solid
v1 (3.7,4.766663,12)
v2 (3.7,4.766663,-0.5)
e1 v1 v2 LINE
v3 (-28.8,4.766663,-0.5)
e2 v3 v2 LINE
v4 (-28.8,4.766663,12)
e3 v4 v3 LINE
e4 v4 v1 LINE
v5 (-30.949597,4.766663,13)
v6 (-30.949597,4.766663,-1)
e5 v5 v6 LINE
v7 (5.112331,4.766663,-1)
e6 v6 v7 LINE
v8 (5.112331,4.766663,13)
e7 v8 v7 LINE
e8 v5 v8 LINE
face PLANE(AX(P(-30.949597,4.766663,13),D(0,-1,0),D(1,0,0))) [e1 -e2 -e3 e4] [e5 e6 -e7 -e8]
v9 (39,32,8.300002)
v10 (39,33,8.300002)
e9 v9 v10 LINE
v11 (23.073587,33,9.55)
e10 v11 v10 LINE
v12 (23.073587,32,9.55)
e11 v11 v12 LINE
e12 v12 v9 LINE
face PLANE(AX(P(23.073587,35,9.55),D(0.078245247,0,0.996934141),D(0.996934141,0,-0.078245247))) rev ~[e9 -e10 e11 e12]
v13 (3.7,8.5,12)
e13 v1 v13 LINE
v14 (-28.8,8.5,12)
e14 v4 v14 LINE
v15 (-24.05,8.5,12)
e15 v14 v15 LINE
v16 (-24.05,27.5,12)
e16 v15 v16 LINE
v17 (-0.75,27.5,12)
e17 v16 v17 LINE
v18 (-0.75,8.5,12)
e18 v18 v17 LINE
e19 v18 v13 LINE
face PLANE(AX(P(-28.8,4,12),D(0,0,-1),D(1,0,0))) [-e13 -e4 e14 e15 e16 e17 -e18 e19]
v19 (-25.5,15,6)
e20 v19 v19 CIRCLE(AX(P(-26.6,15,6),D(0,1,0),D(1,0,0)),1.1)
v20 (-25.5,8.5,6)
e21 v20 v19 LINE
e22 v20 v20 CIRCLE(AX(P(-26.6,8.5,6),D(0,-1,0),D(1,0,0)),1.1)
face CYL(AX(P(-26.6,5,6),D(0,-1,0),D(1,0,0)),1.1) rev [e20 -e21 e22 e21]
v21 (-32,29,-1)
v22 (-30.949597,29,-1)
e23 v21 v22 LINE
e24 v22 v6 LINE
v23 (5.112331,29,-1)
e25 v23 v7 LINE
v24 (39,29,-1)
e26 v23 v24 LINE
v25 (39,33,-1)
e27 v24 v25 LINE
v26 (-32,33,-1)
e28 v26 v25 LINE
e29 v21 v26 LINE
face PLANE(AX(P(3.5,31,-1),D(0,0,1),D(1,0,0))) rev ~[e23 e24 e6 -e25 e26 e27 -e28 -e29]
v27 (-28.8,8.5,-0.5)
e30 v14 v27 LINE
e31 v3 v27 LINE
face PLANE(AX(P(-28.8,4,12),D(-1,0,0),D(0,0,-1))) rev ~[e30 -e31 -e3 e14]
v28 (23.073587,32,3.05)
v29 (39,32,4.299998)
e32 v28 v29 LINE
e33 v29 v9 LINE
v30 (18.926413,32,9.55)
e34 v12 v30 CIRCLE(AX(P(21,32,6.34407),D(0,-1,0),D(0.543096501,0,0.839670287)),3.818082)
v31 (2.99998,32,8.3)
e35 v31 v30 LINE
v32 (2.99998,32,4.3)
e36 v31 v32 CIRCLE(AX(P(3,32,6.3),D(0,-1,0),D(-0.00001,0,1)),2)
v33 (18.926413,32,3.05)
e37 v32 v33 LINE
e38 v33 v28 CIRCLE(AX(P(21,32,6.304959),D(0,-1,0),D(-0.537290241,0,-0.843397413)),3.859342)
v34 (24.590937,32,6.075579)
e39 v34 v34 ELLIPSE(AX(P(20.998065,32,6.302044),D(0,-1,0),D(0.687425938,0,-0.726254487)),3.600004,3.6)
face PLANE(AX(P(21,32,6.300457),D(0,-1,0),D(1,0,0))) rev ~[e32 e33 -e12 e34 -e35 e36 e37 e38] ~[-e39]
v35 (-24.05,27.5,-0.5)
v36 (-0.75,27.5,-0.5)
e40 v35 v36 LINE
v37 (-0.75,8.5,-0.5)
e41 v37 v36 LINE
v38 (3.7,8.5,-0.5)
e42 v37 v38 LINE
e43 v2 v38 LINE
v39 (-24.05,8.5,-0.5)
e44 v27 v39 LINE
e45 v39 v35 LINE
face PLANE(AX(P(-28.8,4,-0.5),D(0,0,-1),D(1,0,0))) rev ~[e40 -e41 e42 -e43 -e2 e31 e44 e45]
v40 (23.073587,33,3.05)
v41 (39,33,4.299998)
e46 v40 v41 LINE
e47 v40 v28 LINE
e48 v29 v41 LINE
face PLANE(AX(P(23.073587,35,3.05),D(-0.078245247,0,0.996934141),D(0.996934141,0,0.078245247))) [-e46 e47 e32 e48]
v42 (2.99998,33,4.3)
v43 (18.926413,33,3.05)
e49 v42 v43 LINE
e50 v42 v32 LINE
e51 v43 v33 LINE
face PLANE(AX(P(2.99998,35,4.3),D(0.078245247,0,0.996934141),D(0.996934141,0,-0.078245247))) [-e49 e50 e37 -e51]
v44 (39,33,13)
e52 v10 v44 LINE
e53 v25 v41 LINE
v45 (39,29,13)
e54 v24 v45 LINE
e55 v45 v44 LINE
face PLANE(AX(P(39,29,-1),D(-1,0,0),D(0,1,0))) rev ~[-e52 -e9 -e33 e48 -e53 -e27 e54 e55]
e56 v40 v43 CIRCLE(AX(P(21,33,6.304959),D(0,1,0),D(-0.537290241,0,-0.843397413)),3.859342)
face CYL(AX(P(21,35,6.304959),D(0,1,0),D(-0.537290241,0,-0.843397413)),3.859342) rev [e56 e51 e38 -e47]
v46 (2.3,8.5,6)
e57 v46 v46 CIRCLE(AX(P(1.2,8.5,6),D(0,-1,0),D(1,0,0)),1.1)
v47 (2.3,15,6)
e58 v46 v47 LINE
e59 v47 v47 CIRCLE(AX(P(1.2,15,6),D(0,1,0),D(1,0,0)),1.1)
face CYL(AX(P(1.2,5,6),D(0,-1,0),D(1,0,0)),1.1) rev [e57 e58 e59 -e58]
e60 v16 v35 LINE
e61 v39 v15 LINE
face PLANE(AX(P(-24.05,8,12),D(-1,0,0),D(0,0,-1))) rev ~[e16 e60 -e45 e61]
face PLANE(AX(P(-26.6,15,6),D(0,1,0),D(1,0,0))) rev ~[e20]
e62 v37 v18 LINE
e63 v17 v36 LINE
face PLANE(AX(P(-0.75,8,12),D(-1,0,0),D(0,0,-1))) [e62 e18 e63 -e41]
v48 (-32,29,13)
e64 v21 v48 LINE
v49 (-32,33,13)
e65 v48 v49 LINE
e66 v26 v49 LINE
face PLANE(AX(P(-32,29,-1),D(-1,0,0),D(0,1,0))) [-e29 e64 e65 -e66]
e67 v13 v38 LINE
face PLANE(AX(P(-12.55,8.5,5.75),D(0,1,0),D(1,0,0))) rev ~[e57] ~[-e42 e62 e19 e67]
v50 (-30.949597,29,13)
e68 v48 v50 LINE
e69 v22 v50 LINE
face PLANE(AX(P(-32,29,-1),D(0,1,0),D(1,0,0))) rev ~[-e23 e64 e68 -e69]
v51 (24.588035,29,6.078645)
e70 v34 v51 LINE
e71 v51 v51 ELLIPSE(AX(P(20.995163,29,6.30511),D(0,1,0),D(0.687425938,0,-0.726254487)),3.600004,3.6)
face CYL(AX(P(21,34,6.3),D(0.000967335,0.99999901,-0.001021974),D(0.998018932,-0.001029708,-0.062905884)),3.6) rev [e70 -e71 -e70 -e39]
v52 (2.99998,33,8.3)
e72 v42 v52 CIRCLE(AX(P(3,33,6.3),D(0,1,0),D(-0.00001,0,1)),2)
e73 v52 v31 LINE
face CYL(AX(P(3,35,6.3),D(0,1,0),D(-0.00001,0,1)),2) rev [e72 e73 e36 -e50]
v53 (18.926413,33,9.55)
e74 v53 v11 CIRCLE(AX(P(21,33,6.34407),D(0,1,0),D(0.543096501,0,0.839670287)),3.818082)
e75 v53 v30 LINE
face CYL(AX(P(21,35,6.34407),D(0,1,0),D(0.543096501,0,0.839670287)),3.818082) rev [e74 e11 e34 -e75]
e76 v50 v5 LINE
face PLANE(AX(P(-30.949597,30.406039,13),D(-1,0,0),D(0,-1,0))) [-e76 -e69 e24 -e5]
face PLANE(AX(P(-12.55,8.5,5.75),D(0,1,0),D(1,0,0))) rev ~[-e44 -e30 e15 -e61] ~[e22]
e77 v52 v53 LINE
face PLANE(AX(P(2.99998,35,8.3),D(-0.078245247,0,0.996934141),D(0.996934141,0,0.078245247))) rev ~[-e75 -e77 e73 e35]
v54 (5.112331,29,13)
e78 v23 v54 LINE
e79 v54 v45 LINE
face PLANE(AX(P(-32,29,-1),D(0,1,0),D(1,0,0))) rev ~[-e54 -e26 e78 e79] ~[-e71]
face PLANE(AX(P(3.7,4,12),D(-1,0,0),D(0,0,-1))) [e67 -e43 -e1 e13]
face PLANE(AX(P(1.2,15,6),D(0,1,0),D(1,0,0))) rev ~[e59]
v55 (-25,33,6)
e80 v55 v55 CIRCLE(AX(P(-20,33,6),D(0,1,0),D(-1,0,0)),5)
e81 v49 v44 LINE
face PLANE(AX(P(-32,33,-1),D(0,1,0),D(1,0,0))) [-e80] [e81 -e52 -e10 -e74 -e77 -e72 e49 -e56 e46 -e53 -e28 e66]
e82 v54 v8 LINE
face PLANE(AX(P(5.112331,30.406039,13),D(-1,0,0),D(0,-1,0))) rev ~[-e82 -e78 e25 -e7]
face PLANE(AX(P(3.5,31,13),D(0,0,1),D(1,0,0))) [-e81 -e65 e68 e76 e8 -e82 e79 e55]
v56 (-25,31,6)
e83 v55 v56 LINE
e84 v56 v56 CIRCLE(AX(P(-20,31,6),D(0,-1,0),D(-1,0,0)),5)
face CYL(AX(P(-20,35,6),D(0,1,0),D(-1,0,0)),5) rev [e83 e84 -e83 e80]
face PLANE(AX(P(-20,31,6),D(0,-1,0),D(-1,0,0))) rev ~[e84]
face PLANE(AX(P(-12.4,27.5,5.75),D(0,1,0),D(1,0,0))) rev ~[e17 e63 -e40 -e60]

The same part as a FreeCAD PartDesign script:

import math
import FreeCAD as App
import Part
import Sketcher
from FreeCAD import Vector
Q = App.Units.Quantity

doc = App.newDocument("Part")
body = doc.addObject("PartDesign::Body", "Body")

# Sketch on XZ plane
sketch1 = body.newObject("Sketcher::SketchObject", "Sketch")
sketch1.AttachmentSupport = (doc.getObject("XZ_Plane"), [""])
sketch1.MapMode = "FlatFace"
sketch1.AttachmentOffset = App.Placement(Vector(0, 0, -22), App.Rotation())
sketch1.addGeometry(Part.Circle(Vector(30, 6, 0), Vector(0, 0, 1), 1.1), False)
sketch1.addConstraint(Sketcher.Constraint("Diameter", 0, Q("2.2 mm")))
sketch1.addConstraint(Sketcher.Constraint("DistanceX", -1, 1, 0, 3, Q("30 mm")))
sketch1.addConstraint(Sketcher.Constraint("DistanceY", -1, 1, 0, 3, Q("6 mm")))
pad1 = body.newObject("PartDesign::Pad", "Pad")
pad1.Profile = sketch1
pad1.Length = 10
body2 = doc.addObject("PartDesign::Body", "Body001")
body2.AllowCompound = True

# Sketch on XZ plane
sketch2 = body2.newObject("Sketcher::SketchObject", "Sketch001")
sketch2.AttachmentSupport = (doc.getObject("XZ_Plane001"), [""])
sketch2.MapMode = "FlatFace"
sketch2.AttachmentOffset = App.Placement(Vector(0, 0, -22), App.Rotation())
sketch2.addGeometry(Part.Circle(Vector(2.2, 6, 0), Vector(0, 0, 1), 1.1), False)
sketch2.addConstraint(Sketcher.Constraint("Diameter", 0, Q("2.2 mm")))
sketch2.addConstraint(Sketcher.Constraint("DistanceY", -1, 1, 0, 3, Q("6 mm")))
sketch2.addConstraint(Sketcher.Constraint("DistanceX", -1, 1, 0, 3, Q("2.2 mm")))
pad2 = body2.newObject("PartDesign::Pad", "Pad001")
pad2.Profile = sketch2
pad2.Length = 10
doc.recompute()

boolean = body2.newObject("PartDesign::Boolean", "Boolean")
boolean.Type = "Fuse"
boolean.addObjects([body])
body3 = doc.addObject("PartDesign::Body", "Body002")

# Sketch on XZ plane
sketch3 = body3.newObject("Sketcher::SketchObject", "Sketch002")
sketch3.AttachmentSupport = (doc.getObject("XZ_Plane002"), [""])
sketch3.MapMode = "FlatFace"
sketch3.addGeometry(Part.LineSegment(Vector(5, 12, 0), Vector(5, 0, 0)), False)
sketch3.addGeometry(Part.LineSegment(Vector(5, 0, 0), Vector(28, 0, 0)), False)
sketch3.addGeometry(Part.LineSegment(Vector(28, 0, 0), Vector(28, 12, 0)), False)
sketch3.addGeometry(Part.LineSegment(Vector(28, 12, 0), Vector(5, 12, 0)), False)
sketch3.addConstraint(Sketcher.Constraint("Coincident", 0, 2, 1, 1))
sketch3.addConstraint(Sketcher.Constraint("Coincident", 1, 2, 2, 1))
sketch3.addConstraint(Sketcher.Constraint("Coincident", 2, 2, 3, 1))
sketch3.addConstraint(Sketcher.Constraint("Coincident", 3, 2, 0, 1))
sketch3.addConstraint(Sketcher.Constraint("Vertical", 0))
sketch3.addConstraint(Sketcher.Constraint("Horizontal", 1))
sketch3.addConstraint(Sketcher.Constraint("Vertical", 2))
sketch3.addConstraint(Sketcher.Constraint("Horizontal", 3))
sketch3.addConstraint(Sketcher.Constraint("PointOnObject", 0, 2, -1))
sketch3.addConstraint(Sketcher.Constraint("DistanceX", 1, 1, 1, 2, Q("23.3 mm")))
sketch3.addConstraint(Sketcher.Constraint("DistanceY", 0, 2, 0, 1, Q("12.5 mm")))
sketch3.addConstraint(Sketcher.Constraint("DistanceX", -1, 1, 0, 2, Q("4.75 mm")))
pad3 = body3.newObject("PartDesign::Pad", "Pad002")
pad3.Profile = sketch3
pad3.Length = 19.5
body4 = doc.addObject("PartDesign::Body", "Body003")
doc.recompute()

body3.Placement = App.Placement(Vector(0, 19, 0), App.Rotation(Vector(0, 0, 1), 0))
boolean2 = body4.newObject("PartDesign::Boolean", "Boolean001")
boolean2.Type = "Fuse"
boolean2.addObjects([body3])
body5 = doc.addObject("PartDesign::Body", "Body004")

# Sketch on XZ plane
sketch4 = body5.newObject("Sketcher::SketchObject", "Sketch003")
sketch4.AttachmentSupport = (doc.getObject("XZ_Plane004"), [""])
sketch4.MapMode = "FlatFace"
sketch4.addGeometry(Part.LineSegment(Vector(0, 12, 0), Vector(0, 0, 0)), False)
sketch4.addGeometry(Part.LineSegment(Vector(0, 0, 0), Vector(32, 0, 0)), False)
sketch4.addGeometry(Part.LineSegment(Vector(32, 0, 0), Vector(32, 12, 0)), False)
sketch4.addGeometry(Part.LineSegment(Vector(32, 12, 0), Vector(0, 12, 0)), False)
sketch4.addConstraint(Sketcher.Constraint("Coincident", 0, 2, 1, 1))
sketch4.addConstraint(Sketcher.Constraint("Coincident", 1, 2, 2, 1))
sketch4.addConstraint(Sketcher.Constraint("Coincident", 2, 2, 3, 1))
sketch4.addConstraint(Sketcher.Constraint("Coincident", 3, 2, 0, 1))
sketch4.addConstraint(Sketcher.Constraint("Vertical", 0))
sketch4.addConstraint(Sketcher.Constraint("Horizontal", 1))
sketch4.addConstraint(Sketcher.Constraint("Vertical", 2))
sketch4.addConstraint(Sketcher.Constraint("Horizontal", 3))
sketch4.addConstraint(Sketcher.Constraint("Coincident", 0, 2, -1, 1))
sketch4.addConstraint(Sketcher.Constraint("DistanceX", 1, 1, 1, 2, Q("32.5 mm")))
sketch4.addConstraint(Sketcher.Constraint("DistanceY", 0, 2, 0, 1, Q("12.5 mm")))
pad4 = body5.newObject("PartDesign::Pad", "Pad003")
pad4.Profile = sketch4
pad4.Length = 4.5
body6 = doc.addObject("PartDesign::Body", "Body005")
doc.recompute()

body5.Placement = App.Placement(Vector(0, 23, 0), App.Rotation(Vector(0, 0, 1), 0))
boolean3 = body6.newObject("PartDesign::Boolean", "Boolean002")
boolean3.Type = "Fuse"
boolean3.addObjects([body5])
body7 = doc.addObject("PartDesign::Body", "Body006")

# Sketch on XY plane
sketch5 = body7.newObject("Sketcher::SketchObject", "Sketch004")
sketch5.AttachmentSupport = (doc.getObject("XY_Plane006"), [""])
sketch5.MapMode = "FlatFace"
sketch5.addGeometry(Part.LineSegment(Vector(-2, 22, 0), Vector(-2, -3, 0)), False)
sketch5.addGeometry(Part.LineSegment(Vector(-2, -3, 0), Vector(34, -3, 0)), False)
sketch5.addGeometry(Part.LineSegment(Vector(34, -3, 0), Vector(34, 22, 0)), False)
sketch5.addGeometry(Part.LineSegment(Vector(34, 22, 0), Vector(-2, 22, 0)), False)
sketch5.addConstraint(Sketcher.Constraint("Coincident", 0, 2, 1, 1))
sketch5.addConstraint(Sketcher.Constraint("Coincident", 1, 2, 2, 1))
sketch5.addConstraint(Sketcher.Constraint("Coincident", 2, 2, 3, 1))
sketch5.addConstraint(Sketcher.Constraint("Coincident", 3, 2, 0, 1))
sketch5.addConstraint(Sketcher.Constraint("Vertical", 0))
sketch5.addConstraint(Sketcher.Constraint("Horizontal", 1))
sketch5.addConstraint(Sketcher.Constraint("Vertical", 2))
sketch5.addConstraint(Sketcher.Constraint("Horizontal", 3))
sketch5.addConstraint(Sketcher.Constraint("DistanceX", 1, 1, 1, 2, Q("36.061928 mm")))
sketch5.addConstraint(Sketcher.Constraint("DistanceY", 0, 2, 0, 1, Q("25.639376 mm")))
sketch5.addConstraint(Sketcher.Constraint("DistanceY", 0, 2, -1, 1, Q("3.406039 mm")))
sketch5.addConstraint(Sketcher.Constraint("DistanceX", -1, 1, 1, 2, Q("33.912331 mm")))
pad5 = body7.newObject("PartDesign::Pad", "Pad004")
pad5.Profile = sketch5
pad5.Length = 14
body8 = doc.addObject("PartDesign::Body", "Body007")
doc.recompute()

body7.Placement = App.Placement(Vector(0, 0, -1), App.Rotation(Vector(0, 0, 1), 0))
boolean4 = body8.newObject("PartDesign::Boolean", "Boolean003")
boolean4.Type = "Fuse"
boolean4.addObjects([body7])
doc.recompute()

boolean5 = body8.newObject("PartDesign::Boolean", "Boolean004")
boolean5.Type = "Cut"
boolean5.addObjects([body6])
doc.recompute()

boolean6 = body8.newObject("PartDesign::Boolean", "Boolean005")
boolean6.Type = "Cut"
boolean6.addObjects([body4])
doc.recompute()

boolean7 = body8.newObject("PartDesign::Boolean", "Boolean006")
boolean7.Type = "Cut"
boolean7.addObjects([body2])
body9 = doc.addObject("PartDesign::Body", "Body008")
doc.recompute()

body8.Placement = App.Placement(Vector(-28.8, 27, 12), App.Rotation(Vector(1, 0, 0), 180))
boolean8 = body9.newObject("PartDesign::Boolean", "Boolean007")
boolean8.Type = "Fuse"
boolean8.addObjects([body8])
body10 = doc.addObject("PartDesign::Body", "Body009")

# Sketch on XY plane
sketch6 = body10.newObject("Sketcher::SketchObject", "Sketch005")
sketch6.AttachmentSupport = (doc.getObject("XY_Plane009"), [""])
sketch6.MapMode = "FlatFace"
sketch6.addGeometry(Part.Circle(Vector(0, 0, 0), Vector(0, 0, 1), 3.6), False)
sketch6.addConstraint(Sketcher.Constraint("Coincident", 0, 3, -1, 1))
sketch6.addConstraint(Sketcher.Constraint("Diameter", 0, Q("7.2 mm")))
pad6 = body10.newObject("PartDesign::Pad", "Pad005")
pad6.Profile = sketch6
pad6.Length = 8
body11 = doc.addObject("PartDesign::Body", "Body010")
doc.recompute()

body10.Placement = App.Placement(Vector(0, 0, 0), App.Rotation(Vector(1, 0, 0), 89.941329))
boolean9 = body11.newObject("PartDesign::Boolean", "Boolean008")
boolean9.Type = "Fuse"
boolean9.addObjects([body10])
body12 = doc.addObject("PartDesign::Body", "Body011")
doc.recompute()

body11.Placement = App.Placement(Vector(0, 0, 0), App.Rotation(Vector(0, 1, 0), 3.606623))
boolean10 = body12.newObject("PartDesign::Boolean", "Boolean009")
boolean10.Type = "Fuse"
boolean10.addObjects([body11])
body13 = doc.addObject("PartDesign::Body", "Body012")
doc.recompute()

body12.Placement = App.Placement(Vector(21, 34, 6.3), App.Rotation(Vector(0, 0, 1), 359.940885))
boolean11 = body13.newObject("PartDesign::Boolean", "Boolean010")
boolean11.Type = "Fuse"
boolean11.addObjects([body12])
body14 = doc.addObject("PartDesign::Body", "Body013")

# Sketch on XZ plane
sketch7 = body14.newObject("Sketcher::SketchObject", "Sketch006")
sketch7.AttachmentSupport = (doc.getObject("XZ_Plane013"), [""])
sketch7.MapMode = "FlatFace"
sketch7.addGeometry(Part.ArcOfCircle(Part.Circle(Vector(-18, 0, 0), Vector(0, 0, 1), 2), math.radians(90), math.radians(270)), False)
sketch7.addGeometry(Part.LineSegment(Vector(-18, -2, 0), Vector(-2.1, -3.2, 0)), False)
sketch7.addGeometry(Part.ArcOfCircle(Part.Circle(Vector(0, 0, 0), Vector(0, 0, 1), 3.9), math.radians(-122), math.radians(-58)), False)
sketch7.addGeometry(Part.LineSegment(Vector(2.1, -3.2, 0), Vector(18, -2, 0)), False)
sketch7.addGeometry(Part.ArcOfCircle(Part.Circle(Vector(18, 0, 0), Vector(0, 0, 1), 2), math.radians(-90), math.radians(90)), False)
sketch7.addGeometry(Part.LineSegment(Vector(18, 2, 0), Vector(2.1, 3.2, 0)), False)
sketch7.addGeometry(Part.ArcOfCircle(Part.Circle(Vector(0, 0, 0), Vector(0, 0, 1), 3.8), math.radians(57), math.radians(123)), False)
sketch7.addGeometry(Part.LineSegment(Vector(-2.1, 3.2, 0), Vector(-18, 2, 0)), False)
sketch7.addConstraint(Sketcher.Constraint("Coincident", 0, 2, 1, 1))
sketch7.addConstraint(Sketcher.Constraint("Coincident", 1, 2, 2, 1))
sketch7.addConstraint(Sketcher.Constraint("Coincident", 2, 2, 3, 1))
sketch7.addConstraint(Sketcher.Constraint("Coincident", 3, 2, 4, 1))
sketch7.addConstraint(Sketcher.Constraint("Coincident", 4, 2, 5, 1))
sketch7.addConstraint(Sketcher.Constraint("Coincident", 5, 2, 6, 1))
sketch7.addConstraint(Sketcher.Constraint("Coincident", 6, 2, 7, 1))
sketch7.addConstraint(Sketcher.Constraint("Coincident", 7, 2, 0, 1))
sketch7.addConstraint(Sketcher.Constraint("Equal", 0, 4))
sketch7.addConstraint(Sketcher.Constraint("Symmetric", 0, 3, 4, 3, -1, 1))
sketch7.addConstraint(Sketcher.Constraint("Symmetric", 1, 2, 5, 2, -1, 1))
sketch7.addConstraint(Sketcher.Constraint("Symmetric", 2, 2, 6, 2, -1, 1))
sketch7.addConstraint(Sketcher.Constraint("Symmetric", 1, 2, 2, 2, -2))
sketch7.addConstraint(Sketcher.Constraint("Symmetric", 0, 2, 3, 2, -2))
sketch7.addConstraint(Sketcher.Constraint("Parallel", 1, 5))
sketch7.addConstraint(Sketcher.Constraint("Parallel", 3, 7))
sketch7.addConstraint(Sketcher.Constraint("Radius", 0, Q("2 mm")))
sketch7.addConstraint(Sketcher.Constraint("DistanceX", 0, 3, -1, 1, Q("18 mm")))
sketch7.addConstraint(Sketcher.Constraint("DistanceY", 2, 2, 5, 2, Q("6.5 mm")))
sketch7.addConstraint(Sketcher.Constraint("Radius", 2, Q("3.859342 mm")))
sketch7.addConstraint(Sketcher.Constraint("Radius", 6, Q("3.818082 mm")))
sketch7.addConstraint(Sketcher.Constraint("Distance", 1, Q("15.975411 mm")))
sketch7.addConstraint(Sketcher.Constraint("DistanceY", -1, 1, 2, 3, Q("0.004959 mm")))
pad7 = body14.newObject("PartDesign::Pad", "Pad006")
pad7.Profile = sketch7
pad7.Length = 3
body15 = doc.addObject("PartDesign::Body", "Body014")
doc.recompute()

body14.Placement = App.Placement(Vector(21, 35, 6.3), App.Rotation(Vector(0, 0, 1), 0))
boolean12 = body15.newObject("PartDesign::Boolean", "Boolean011")
boolean12.Type = "Fuse"
boolean12.addObjects([body14])
doc.recompute()

boolean13 = body15.newObject("PartDesign::Boolean", "Boolean012")
boolean13.Type = "Fuse"
boolean13.addObjects([body13])
body16 = doc.addObject("PartDesign::Body", "Body015")

# Sketch on XZ plane
sketch8 = body16.newObject("Sketcher::SketchObject", "Sketch007")
sketch8.AttachmentSupport = (doc.getObject("XZ_Plane015"), [""])
sketch8.MapMode = "FlatFace"
sketch8.AttachmentOffset = App.Placement(Vector(0, 0, -35), App.Rotation())
sketch8.addGeometry(Part.Circle(Vector(-20, 6, 0), Vector(0, 0, 1), 5), False)
sketch8.addConstraint(Sketcher.Constraint("Diameter", 0, Q("10 mm")))
sketch8.addConstraint(Sketcher.Constraint("DistanceX", 0, 3, -1, 1, Q("20 mm")))
sketch8.addConstraint(Sketcher.Constraint("DistanceY", -1, 1, 0, 3, Q("6 mm")))
pad8 = body16.newObject("PartDesign::Pad", "Pad007")
pad8.Profile = sketch8
pad8.Length = 4
body17 = doc.addObject("PartDesign::Body", "Body016")

# Sketch on XY plane
sketch9 = body17.newObject("Sketcher::SketchObject", "Sketch008")
sketch9.AttachmentSupport = (doc.getObject("XY_Plane016"), [""])
sketch9.MapMode = "FlatFace"
sketch9.AttachmentOffset = App.Placement(Vector(0, 0, -1), App.Rotation())
sketch9.addGeometry(Part.LineSegment(Vector(-32, 33, 0), Vector(-32, 29, 0)), False)
sketch9.addGeometry(Part.LineSegment(Vector(-32, 29, 0), Vector(39, 29, 0)), False)
sketch9.addGeometry(Part.LineSegment(Vector(39, 29, 0), Vector(39, 33, 0)), False)
sketch9.addGeometry(Part.LineSegment(Vector(39, 33, 0), Vector(-32, 33, 0)), False)
sketch9.addConstraint(Sketcher.Constraint("Coincident", 0, 2, 1, 1))
sketch9.addConstraint(Sketcher.Constraint("Coincident", 1, 2, 2, 1))
sketch9.addConstraint(Sketcher.Constraint("Coincident", 2, 2, 3, 1))
sketch9.addConstraint(Sketcher.Constraint("Coincident", 3, 2, 0, 1))
sketch9.addConstraint(Sketcher.Constraint("Vertical", 0))
sketch9.addConstraint(Sketcher.Constraint("Horizontal", 1))
sketch9.addConstraint(Sketcher.Constraint("Vertical", 2))
sketch9.addConstraint(Sketcher.Constraint("Horizontal", 3))
sketch9.addConstraint(Sketcher.Constraint("DistanceX", 1, 1, 1, 2, Q("71 mm")))
sketch9.addConstraint(Sketcher.Constraint("DistanceY", 0, 2, 0, 1, Q("4 mm")))
sketch9.addConstraint(Sketcher.Constraint("DistanceX", 0, 2, -1, 1, Q("32 mm")))
sketch9.addConstraint(Sketcher.Constraint("DistanceY", -1, 1, 0, 2, Q("29 mm")))
pad9 = body17.newObject("PartDesign::Pad", "Pad008")
pad9.Profile = sketch9
pad9.Length = 14
doc.recompute()

boolean14 = body17.newObject("PartDesign::Boolean", "Boolean013")
boolean14.Type = "Cut"
boolean14.addObjects([body16])
doc.recompute()

boolean15 = body17.newObject("PartDesign::Boolean", "Boolean014")
boolean15.Type = "Cut"
boolean15.addObjects([body15])
doc.recompute()

boolean16 = body17.newObject("PartDesign::Boolean", "Boolean015")
boolean16.Type = "Fuse"
boolean16.addObjects([body9])

doc.recompute()
